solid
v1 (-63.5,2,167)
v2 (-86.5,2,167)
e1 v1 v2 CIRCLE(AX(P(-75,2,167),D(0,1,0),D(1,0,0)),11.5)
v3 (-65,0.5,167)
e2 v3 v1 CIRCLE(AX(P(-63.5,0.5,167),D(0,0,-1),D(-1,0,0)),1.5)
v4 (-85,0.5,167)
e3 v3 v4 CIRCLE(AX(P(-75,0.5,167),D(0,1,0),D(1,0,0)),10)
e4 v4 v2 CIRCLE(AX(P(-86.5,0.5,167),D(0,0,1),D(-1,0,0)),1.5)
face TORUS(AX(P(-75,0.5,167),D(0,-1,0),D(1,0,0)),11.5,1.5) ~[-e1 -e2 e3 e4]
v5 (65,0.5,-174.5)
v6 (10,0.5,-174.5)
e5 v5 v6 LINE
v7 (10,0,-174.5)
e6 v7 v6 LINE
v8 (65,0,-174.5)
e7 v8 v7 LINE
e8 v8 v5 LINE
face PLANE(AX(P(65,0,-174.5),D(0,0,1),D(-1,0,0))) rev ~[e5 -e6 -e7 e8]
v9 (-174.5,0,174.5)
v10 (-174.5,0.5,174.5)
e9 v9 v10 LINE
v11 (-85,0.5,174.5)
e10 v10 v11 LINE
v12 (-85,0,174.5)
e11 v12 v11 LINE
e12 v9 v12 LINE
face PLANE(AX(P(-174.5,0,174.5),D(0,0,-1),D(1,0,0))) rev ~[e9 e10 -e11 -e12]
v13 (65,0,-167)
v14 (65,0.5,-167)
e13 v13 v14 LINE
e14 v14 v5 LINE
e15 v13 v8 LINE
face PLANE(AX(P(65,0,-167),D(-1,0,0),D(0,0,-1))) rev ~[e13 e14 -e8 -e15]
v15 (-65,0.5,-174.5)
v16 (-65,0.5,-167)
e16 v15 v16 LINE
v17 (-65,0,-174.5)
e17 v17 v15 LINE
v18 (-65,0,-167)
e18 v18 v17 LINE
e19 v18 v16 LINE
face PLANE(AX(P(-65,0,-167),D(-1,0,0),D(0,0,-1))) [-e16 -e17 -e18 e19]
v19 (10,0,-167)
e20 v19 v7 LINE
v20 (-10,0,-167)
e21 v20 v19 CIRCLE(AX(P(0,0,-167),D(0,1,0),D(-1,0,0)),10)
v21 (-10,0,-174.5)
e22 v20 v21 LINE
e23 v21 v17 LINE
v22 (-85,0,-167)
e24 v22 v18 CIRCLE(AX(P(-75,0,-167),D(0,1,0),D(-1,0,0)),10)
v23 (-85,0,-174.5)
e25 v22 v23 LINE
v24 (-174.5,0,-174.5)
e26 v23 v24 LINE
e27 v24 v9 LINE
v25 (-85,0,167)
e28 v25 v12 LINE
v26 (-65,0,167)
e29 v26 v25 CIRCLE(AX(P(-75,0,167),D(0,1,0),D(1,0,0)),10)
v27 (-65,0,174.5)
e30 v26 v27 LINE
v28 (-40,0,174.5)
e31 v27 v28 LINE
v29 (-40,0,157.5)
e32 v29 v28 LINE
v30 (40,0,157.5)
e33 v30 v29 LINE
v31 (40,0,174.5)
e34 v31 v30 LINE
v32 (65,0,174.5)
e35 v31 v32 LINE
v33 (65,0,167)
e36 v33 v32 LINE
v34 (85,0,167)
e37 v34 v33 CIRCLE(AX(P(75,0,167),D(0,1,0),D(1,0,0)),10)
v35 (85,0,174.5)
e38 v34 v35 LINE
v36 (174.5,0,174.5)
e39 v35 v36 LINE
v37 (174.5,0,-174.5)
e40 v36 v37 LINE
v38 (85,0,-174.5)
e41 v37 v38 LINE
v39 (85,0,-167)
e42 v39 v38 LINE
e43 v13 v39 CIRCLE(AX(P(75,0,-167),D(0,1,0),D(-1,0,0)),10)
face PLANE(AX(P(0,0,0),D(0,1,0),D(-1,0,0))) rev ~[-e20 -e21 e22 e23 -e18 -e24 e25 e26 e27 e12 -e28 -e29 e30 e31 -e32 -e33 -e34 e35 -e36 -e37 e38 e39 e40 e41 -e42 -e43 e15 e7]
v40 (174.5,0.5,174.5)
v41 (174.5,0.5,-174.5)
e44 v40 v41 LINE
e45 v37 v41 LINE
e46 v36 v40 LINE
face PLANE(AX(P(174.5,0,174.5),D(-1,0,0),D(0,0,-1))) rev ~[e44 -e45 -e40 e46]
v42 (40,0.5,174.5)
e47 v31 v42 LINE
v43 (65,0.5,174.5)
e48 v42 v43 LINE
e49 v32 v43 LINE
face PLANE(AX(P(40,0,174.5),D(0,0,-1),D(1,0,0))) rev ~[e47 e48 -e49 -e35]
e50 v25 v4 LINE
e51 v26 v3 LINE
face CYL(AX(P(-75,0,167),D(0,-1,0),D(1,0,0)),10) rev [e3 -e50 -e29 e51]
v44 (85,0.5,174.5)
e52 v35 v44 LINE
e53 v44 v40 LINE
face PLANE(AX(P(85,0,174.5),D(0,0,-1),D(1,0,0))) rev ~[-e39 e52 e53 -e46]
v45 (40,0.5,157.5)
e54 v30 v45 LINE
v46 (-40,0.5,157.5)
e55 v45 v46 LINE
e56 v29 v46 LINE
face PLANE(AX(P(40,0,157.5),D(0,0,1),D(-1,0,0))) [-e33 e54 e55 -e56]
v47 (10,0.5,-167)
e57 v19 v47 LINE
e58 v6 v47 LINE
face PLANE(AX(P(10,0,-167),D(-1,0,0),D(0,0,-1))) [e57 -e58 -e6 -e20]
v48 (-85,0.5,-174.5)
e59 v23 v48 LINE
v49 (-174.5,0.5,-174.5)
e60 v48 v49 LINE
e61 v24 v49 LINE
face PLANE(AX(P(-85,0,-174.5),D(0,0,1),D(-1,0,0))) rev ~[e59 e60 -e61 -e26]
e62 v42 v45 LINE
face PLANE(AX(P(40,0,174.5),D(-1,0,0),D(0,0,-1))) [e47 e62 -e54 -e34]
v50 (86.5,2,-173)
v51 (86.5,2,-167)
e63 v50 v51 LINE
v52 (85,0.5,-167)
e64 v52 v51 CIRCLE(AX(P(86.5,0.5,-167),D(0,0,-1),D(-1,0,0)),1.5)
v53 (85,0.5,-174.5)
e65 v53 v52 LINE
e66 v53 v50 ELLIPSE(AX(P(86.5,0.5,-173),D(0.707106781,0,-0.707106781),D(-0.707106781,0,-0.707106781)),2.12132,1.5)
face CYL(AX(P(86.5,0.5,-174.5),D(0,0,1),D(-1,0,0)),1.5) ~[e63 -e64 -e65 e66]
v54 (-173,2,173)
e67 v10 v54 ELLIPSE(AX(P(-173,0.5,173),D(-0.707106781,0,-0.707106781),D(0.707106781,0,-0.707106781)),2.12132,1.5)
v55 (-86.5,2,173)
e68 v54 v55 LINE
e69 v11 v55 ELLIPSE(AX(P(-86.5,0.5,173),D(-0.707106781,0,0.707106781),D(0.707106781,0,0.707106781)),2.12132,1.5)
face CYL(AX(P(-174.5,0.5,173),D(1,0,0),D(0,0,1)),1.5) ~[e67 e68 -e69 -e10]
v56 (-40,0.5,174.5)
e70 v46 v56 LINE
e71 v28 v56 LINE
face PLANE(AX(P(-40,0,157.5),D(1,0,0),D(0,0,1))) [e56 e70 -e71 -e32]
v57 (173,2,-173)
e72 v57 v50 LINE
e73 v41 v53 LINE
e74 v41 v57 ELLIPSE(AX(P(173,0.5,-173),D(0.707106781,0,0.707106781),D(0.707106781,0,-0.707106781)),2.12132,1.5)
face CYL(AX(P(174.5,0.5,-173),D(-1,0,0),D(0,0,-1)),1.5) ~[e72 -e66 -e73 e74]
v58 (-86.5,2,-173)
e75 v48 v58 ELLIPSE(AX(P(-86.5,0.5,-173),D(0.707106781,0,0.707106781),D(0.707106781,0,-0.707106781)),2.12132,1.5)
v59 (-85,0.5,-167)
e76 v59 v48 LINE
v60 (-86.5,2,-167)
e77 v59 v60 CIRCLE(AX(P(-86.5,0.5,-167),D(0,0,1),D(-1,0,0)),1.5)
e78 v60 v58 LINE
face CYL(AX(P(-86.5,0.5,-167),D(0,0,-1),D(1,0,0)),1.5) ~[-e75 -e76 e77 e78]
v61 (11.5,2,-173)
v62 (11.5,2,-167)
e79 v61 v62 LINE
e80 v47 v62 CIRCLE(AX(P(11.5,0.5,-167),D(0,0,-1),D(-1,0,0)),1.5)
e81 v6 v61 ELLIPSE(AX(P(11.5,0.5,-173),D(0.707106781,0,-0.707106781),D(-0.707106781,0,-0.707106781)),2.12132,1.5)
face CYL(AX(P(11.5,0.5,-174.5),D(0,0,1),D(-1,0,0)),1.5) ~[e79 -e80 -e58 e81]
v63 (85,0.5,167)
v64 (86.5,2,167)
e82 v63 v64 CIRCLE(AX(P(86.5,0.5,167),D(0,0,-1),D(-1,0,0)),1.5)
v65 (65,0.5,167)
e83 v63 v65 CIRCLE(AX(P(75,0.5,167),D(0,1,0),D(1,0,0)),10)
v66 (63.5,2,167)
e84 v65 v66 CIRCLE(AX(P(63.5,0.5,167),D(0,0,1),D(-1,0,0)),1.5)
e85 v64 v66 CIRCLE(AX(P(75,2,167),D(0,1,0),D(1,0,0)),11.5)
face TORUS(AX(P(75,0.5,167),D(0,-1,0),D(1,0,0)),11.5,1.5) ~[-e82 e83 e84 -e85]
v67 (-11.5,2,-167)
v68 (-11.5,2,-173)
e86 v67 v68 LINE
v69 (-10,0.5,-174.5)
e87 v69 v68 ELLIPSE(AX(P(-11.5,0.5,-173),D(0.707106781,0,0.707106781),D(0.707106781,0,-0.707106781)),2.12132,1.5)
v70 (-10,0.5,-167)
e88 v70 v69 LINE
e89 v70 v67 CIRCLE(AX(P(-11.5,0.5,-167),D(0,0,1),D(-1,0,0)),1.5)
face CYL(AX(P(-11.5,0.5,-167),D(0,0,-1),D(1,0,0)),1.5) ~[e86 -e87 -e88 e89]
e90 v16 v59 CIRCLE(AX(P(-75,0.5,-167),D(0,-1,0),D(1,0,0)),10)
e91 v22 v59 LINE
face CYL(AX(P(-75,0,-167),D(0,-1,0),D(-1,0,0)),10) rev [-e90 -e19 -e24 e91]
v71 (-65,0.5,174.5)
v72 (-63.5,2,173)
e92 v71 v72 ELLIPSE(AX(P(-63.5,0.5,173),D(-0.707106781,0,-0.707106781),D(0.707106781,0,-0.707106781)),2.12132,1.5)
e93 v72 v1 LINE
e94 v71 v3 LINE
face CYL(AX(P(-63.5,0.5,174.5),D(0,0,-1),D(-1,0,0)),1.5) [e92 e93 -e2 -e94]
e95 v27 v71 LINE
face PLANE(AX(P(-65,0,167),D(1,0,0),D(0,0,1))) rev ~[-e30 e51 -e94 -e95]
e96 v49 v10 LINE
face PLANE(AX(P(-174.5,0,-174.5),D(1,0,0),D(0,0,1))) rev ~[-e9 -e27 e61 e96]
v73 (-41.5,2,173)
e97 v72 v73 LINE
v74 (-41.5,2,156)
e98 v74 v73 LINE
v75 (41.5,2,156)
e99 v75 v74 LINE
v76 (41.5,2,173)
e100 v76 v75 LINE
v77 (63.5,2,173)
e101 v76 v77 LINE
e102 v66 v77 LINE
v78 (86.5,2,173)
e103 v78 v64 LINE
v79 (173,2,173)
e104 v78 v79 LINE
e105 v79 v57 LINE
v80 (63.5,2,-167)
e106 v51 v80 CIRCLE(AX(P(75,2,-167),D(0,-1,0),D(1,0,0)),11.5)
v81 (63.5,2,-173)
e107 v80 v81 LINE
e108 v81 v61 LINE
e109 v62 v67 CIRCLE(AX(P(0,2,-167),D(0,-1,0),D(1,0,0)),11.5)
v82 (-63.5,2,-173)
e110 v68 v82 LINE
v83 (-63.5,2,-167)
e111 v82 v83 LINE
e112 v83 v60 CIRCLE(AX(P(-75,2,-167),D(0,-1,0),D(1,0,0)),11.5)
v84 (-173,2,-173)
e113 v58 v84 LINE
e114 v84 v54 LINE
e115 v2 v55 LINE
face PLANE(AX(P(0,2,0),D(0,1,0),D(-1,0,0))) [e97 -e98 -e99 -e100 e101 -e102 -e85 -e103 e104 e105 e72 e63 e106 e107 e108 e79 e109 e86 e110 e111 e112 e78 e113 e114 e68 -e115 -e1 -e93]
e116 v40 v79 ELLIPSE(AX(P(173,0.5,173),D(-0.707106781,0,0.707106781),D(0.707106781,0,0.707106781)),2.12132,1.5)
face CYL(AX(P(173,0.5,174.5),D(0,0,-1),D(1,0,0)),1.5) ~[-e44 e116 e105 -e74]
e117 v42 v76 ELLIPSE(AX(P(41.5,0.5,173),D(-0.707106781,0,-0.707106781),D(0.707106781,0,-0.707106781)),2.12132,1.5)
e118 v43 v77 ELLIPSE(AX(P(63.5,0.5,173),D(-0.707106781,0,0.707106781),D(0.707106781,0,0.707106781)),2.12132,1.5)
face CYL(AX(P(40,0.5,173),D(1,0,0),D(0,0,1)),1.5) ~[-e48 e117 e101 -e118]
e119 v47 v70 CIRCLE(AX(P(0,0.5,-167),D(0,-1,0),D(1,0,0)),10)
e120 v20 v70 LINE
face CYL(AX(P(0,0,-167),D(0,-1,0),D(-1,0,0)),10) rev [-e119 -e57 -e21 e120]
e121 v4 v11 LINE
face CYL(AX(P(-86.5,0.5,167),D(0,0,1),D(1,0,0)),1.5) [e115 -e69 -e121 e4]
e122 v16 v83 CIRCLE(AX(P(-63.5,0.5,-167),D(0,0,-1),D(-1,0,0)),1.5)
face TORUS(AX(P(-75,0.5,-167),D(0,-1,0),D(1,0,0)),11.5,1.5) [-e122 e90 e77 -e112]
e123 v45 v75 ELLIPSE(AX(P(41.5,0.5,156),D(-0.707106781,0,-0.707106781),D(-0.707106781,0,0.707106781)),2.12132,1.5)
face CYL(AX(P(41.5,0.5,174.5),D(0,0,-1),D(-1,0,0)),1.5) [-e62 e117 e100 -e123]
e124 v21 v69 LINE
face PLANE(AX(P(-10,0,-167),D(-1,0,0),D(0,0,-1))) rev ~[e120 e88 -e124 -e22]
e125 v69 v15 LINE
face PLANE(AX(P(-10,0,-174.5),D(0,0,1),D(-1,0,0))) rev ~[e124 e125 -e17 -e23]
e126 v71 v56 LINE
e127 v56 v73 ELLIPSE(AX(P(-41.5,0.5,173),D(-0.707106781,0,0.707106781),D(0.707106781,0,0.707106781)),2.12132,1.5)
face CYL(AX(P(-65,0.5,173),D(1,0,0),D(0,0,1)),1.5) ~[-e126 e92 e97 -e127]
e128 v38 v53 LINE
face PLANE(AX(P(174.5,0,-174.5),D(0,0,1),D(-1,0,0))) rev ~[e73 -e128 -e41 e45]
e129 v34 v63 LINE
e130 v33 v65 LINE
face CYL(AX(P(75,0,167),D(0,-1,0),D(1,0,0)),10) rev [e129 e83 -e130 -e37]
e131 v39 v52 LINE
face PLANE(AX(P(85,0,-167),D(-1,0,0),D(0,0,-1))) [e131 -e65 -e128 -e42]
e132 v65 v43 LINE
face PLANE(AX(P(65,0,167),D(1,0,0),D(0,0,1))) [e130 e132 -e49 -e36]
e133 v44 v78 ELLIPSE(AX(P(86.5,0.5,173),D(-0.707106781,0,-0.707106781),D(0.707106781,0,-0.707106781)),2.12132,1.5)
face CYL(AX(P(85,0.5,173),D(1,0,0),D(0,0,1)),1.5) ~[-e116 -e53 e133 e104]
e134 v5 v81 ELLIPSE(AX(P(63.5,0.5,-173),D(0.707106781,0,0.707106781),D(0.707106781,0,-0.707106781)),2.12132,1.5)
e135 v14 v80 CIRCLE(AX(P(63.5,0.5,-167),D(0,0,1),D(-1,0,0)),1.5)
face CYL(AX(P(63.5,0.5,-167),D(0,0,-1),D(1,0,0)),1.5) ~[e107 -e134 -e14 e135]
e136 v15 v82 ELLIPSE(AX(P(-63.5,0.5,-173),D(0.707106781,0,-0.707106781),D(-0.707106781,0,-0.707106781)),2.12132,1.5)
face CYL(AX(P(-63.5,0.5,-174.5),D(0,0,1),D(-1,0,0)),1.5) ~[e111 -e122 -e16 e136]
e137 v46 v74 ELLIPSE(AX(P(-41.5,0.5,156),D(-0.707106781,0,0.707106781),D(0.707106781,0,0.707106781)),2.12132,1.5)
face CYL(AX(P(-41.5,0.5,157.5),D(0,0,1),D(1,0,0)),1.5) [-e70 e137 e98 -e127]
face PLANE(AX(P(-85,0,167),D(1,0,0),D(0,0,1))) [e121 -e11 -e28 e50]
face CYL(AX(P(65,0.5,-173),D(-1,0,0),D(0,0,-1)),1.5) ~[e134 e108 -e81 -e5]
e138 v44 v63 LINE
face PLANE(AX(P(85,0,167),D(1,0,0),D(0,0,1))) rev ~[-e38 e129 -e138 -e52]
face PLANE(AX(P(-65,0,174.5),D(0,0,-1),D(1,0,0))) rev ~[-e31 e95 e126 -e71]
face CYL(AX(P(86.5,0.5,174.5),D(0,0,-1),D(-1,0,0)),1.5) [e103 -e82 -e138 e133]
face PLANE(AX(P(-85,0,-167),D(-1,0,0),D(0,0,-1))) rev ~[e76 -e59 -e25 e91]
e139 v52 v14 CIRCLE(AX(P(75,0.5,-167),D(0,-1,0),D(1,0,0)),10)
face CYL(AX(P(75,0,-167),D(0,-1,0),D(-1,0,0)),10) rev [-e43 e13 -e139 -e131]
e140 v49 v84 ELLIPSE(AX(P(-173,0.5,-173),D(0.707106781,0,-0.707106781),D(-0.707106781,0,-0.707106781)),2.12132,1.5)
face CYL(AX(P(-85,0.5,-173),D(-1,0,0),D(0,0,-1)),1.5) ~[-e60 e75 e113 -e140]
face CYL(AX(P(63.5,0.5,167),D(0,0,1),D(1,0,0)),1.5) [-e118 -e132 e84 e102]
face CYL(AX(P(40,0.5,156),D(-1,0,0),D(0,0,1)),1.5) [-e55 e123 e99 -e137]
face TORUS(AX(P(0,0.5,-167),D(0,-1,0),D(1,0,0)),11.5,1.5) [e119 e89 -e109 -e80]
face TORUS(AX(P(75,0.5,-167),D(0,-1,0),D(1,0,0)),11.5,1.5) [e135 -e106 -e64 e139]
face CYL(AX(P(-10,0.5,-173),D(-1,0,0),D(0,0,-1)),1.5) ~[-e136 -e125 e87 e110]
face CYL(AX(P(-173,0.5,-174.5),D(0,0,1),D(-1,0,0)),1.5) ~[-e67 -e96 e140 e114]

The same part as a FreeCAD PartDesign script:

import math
import FreeCAD as App
import Part
import Sketcher


def edges_at(feature, points):
    """Names of the edges that pass closest to the given points."""
    edges = feature.Shape.Edges
    near = lambda p: min(range(len(edges)), key=lambda i: edges[i].distToShape(Part.Vertex(*p))[0])
    return sorted({f"Edge{near(p) + 1}" for p in points})

doc = App.newDocument("Part")
body = doc.addObject("PartDesign::Body", "Body")

# Sketch on XZ plane
sketch1 = doc.addObject("Sketcher::SketchObject", "Sketch")
body.addObject(sketch1)
sketch1.AttachmentSupport = (doc.XZ_Plane, [""])
sketch1.MapMode = "FlatFace"
sketch1.addGeometry([
    Part.LineSegment(App.Vector(-174.5, -174.5, 0), App.Vector(-174.5, 174.5, 0)),  # 0
    Part.LineSegment(App.Vector(-174.5, 174.5, 0), App.Vector(-85, 174.5, 0)),  # 1
    Part.LineSegment(App.Vector(-85, 174.5, 0), App.Vector(-85, 167, 0)),  # 2
    Part.ArcOfCircle(Part.Circle(App.Vector(-75, 167, 0), App.Vector(0, 0, 1), 10), math.radians(180), math.radians(360)),  # 3
    Part.LineSegment(App.Vector(-65, 167, 0), App.Vector(-65, 174.5, 0)),  # 4
    Part.LineSegment(App.Vector(-65, 174.5, 0), App.Vector(-40, 174.5, 0)),  # 5
    Part.LineSegment(App.Vector(-40, 174.5, 0), App.Vector(-40, 157.5, 0)),  # 6
    Part.LineSegment(App.Vector(-40, 157.5, 0), App.Vector(40, 157.5, 0)),  # 7
    Part.LineSegment(App.Vector(40, 157.5, 0), App.Vector(40, 174.5, 0)),  # 8
    Part.LineSegment(App.Vector(40, 174.5, 0), App.Vector(65, 174.5, 0)),  # 9
    Part.LineSegment(App.Vector(65, 174.5, 0), App.Vector(65, 167, 0)),  # 10
    Part.ArcOfCircle(Part.Circle(App.Vector(75, 167, 0), App.Vector(0, 0, 1), 10), math.radians(180), math.radians(360)),  # 11
    Part.LineSegment(App.Vector(85, 167, 0), App.Vector(85, 174.5, 0)),  # 12
    Part.LineSegment(App.Vector(85, 174.5, 0), App.Vector(174.5, 174.5, 0)),  # 13
    Part.LineSegment(App.Vector(174.5, 174.5, 0), App.Vector(174.5, -174.5, 0)),  # 14
    Part.LineSegment(App.Vector(174.5, -174.5, 0), App.Vector(85, -174.5, 0)),  # 15
    Part.LineSegment(App.Vector(85, -174.5, 0), App.Vector(85, -167, 0)),  # 16
    Part.ArcOfCircle(Part.Circle(App.Vector(75, -167, 0), App.Vector(0, 0, 1), 10), math.radians(0), math.radians(180)),  # 17
    Part.LineSegment(App.Vector(65, -167, 0), App.Vector(65, -174.5, 0)),  # 18
    Part.LineSegment(App.Vector(65, -174.5, 0), App.Vector(10, -174.5, 0)),  # 19
    Part.LineSegment(App.Vector(10, -174.5, 0), App.Vector(10, -167, 0)),  # 20
    Part.ArcOfCircle(Part.Circle(App.Vector(0, -167, 0), App.Vector(0, 0, 1), 10), math.radians(0), math.radians(180)),  # 21
    Part.LineSegment(App.Vector(-10, -167, 0), App.Vector(-10, -174.5, 0)),  # 22
    Part.LineSegment(App.Vector(-10, -174.5, 0), App.Vector(-65, -174.5, 0)),  # 23
    Part.LineSegment(App.Vector(-65, -174.5, 0), App.Vector(-65, -167, 0)),  # 24
    Part.ArcOfCircle(Part.Circle(App.Vector(-75, -167, 0), App.Vector(0, 0, 1), 10), math.radians(0), math.radians(180)),  # 25
    Part.LineSegment(App.Vector(-85, -167, 0), App.Vector(-85, -174.5, 0)),  # 26
    Part.LineSegment(App.Vector(-85, -174.5, 0), App.Vector(-174.5, -174.5, 0)),  # 27
], False)
sketch1.addConstraint([
    Sketcher.Constraint("Coincident", 0, 2, 1, 1),
    Sketcher.Constraint("Coincident", 1, 2, 2, 1),
    Sketcher.Constraint("Tangent", 2, 2, 3, 1),
    Sketcher.Constraint("Tangent", 3, 2, 4, 1),
    Sketcher.Constraint("Coincident", 4, 2, 5, 1),
    Sketcher.Constraint("Coincident", 5, 2, 6, 1),
    Sketcher.Constraint("Coincident", 6, 2, 7, 1),
    Sketcher.Constraint("Coincident", 7, 2, 8, 1),
    Sketcher.Constraint("Coincident", 8, 2, 9, 1),
    Sketcher.Constraint("Coincident", 9, 2, 10, 1),
    Sketcher.Constraint("Tangent", 10, 2, 11, 1),
    Sketcher.Constraint("Tangent", 11, 2, 12, 1),
    Sketcher.Constraint("Coincident", 12, 2, 13, 1),
    Sketcher.Constraint("Coincident", 13, 2, 14, 1),
    Sketcher.Constraint("Coincident", 14, 2, 15, 1),
    Sketcher.Constraint("Coincident", 15, 2, 16, 1),
    Sketcher.Constraint("Tangent", 16, 2, 17, 1),
    Sketcher.Constraint("Tangent", 17, 2, 18, 1),
    Sketcher.Constraint("Coincident", 18, 2, 19, 1),
    Sketcher.Constraint("Coincident", 19, 2, 20, 1),
    Sketcher.Constraint("Tangent", 20, 2, 21, 1),
    Sketcher.Constraint("Tangent", 21, 2, 22, 1),
    Sketcher.Constraint("Coincident", 22, 2, 23, 1),
    Sketcher.Constraint("Coincident", 23, 2, 24, 1),
    Sketcher.Constraint("Tangent", 24, 2, 25, 1),
    Sketcher.Constraint("Tangent", 25, 2, 26, 1),
    Sketcher.Constraint("Coincident", 26, 2, 27, 1),
    Sketcher.Constraint("Coincident", 27, 2, 0, 1),
    Sketcher.Constraint("Vertical", 0),
    Sketcher.Constraint("Horizontal", 1),
    Sketcher.Constraint("Vertical", 2),
    Sketcher.Constraint("Vertical", 4),
    Sketcher.Constraint("Horizontal", 5),
    Sketcher.Constraint("Vertical", 6),
    Sketcher.Constraint("Horizontal", 7),
    Sketcher.Constraint("Vertical", 8),
    Sketcher.Constraint("Horizontal", 9),
    Sketcher.Constraint("Vertical", 10),
    Sketcher.Constraint("Vertical", 12),
    Sketcher.Constraint("Horizontal", 13),
    Sketcher.Constraint("Vertical", 14),
    Sketcher.Constraint("Horizontal", 15),
    Sketcher.Constraint("Vertical", 16),
    Sketcher.Constraint("Vertical", 18),
    Sketcher.Constraint("Horizontal", 19),
    Sketcher.Constraint("Vertical", 20),
    Sketcher.Constraint("Vertical", 22),
    Sketcher.Constraint("Horizontal", 23),
    Sketcher.Constraint("Vertical", 24),
    Sketcher.Constraint("Vertical", 26),
    Sketcher.Constraint("Horizontal", 27),
    Sketcher.Constraint("Equal", 3, 11),
    Sketcher.Constraint("Equal", 11, 17),
    Sketcher.Constraint("Equal", 17, 21),
    Sketcher.Constraint("Equal", 21, 25),
    Sketcher.Constraint("Symmetric", 3, 3, 17, 3, -1, 1),
    Sketcher.Constraint("Symmetric", 11, 3, 25, 3, -1, 1),
    Sketcher.Constraint("Symmetric", 0, 2, 14, 2, -1, 1),
    Sketcher.Constraint("Symmetric", 3, 3, 11, 3, -2),
    Sketcher.Constraint("Symmetric", 5, 2, 8, 2, -2),
    Sketcher.Constraint("Symmetric", 19, 2, 22, 2, -2),
    Sketcher.Constraint("Horizontal", 17, 3, 21, 3),
    Sketcher.Constraint("Horizontal", 1, 2, 4, 2),
    Sketcher.Constraint("Horizontal", 9, 2, 12, 2),
    Sketcher.Constraint("Horizontal", 15, 2, 18, 2),
    Sketcher.Constraint("Horizontal", 23, 2, 26, 2),
    Sketcher.Constraint("Radius", 3, 10.0),
    Sketcher.Constraint("DistanceX", 7, 1, 7, 2, 80.0),
    Sketcher.Constraint("DistanceY", 0, 1, 0, 2, 349.0),
    Sketcher.Constraint("DistanceY", 6, 2, 6, 1, 17.0),
    Sketcher.Constraint("DistanceX", 3, 3, 11, 3, 150.0),
    Sketcher.Constraint("DistanceX", 1, 1, 1, 2, 89.5),
    Sketcher.Constraint("DistanceY", 2, 2, 2, 1, 7.5),
])
pad1 = doc.addObject("PartDesign::Pad", "Pad")
body.addObject(pad1)
pad1.Profile = sketch1
pad1.Length = 2
pad1.Reversed = True
doc.recompute()

fillet = doc.addObject("PartDesign::Fillet", "Fillet")
body.addObject(fillet)
fillet.Base = (pad1, edges_at(pad1, [
    (-129.75, 2, 174.5),
    (-75, 2, 157),
    (-65, 2, 170.75),
    (-85, 2, 170.75),
    (-52.5, 2, 174.5),
    (-40, 2, 166),
    (0, 2, 157.5),
    (40, 2, 166),
    (52.5, 2, 174.5),
    (75, 2, 157),
    (85, 2, 170.75),
    (65, 2, 170.75),
    (129.75, 2, 174.5),
    (174.5, 2, 0),
    (129.75, 2, -174.5),
    (65, 2, -170.75),
    (85, 2, -170.75),
    (75, 2, -157),
    (37.5, 2, -174.5),
    (-10, 2, -170.75),
    (10, 2, -170.75),
    (0, 2, -157),
    (-37.5, 2, -174.5),
    (-85, 2, -170.75),
    (-65, 2, -170.75),
    (-75, 2, -157),
    (-129.75, 2, -174.5),
    (-174.5, 2, 0),
]))
fillet.Radius = 1.5

doc.recompute()
